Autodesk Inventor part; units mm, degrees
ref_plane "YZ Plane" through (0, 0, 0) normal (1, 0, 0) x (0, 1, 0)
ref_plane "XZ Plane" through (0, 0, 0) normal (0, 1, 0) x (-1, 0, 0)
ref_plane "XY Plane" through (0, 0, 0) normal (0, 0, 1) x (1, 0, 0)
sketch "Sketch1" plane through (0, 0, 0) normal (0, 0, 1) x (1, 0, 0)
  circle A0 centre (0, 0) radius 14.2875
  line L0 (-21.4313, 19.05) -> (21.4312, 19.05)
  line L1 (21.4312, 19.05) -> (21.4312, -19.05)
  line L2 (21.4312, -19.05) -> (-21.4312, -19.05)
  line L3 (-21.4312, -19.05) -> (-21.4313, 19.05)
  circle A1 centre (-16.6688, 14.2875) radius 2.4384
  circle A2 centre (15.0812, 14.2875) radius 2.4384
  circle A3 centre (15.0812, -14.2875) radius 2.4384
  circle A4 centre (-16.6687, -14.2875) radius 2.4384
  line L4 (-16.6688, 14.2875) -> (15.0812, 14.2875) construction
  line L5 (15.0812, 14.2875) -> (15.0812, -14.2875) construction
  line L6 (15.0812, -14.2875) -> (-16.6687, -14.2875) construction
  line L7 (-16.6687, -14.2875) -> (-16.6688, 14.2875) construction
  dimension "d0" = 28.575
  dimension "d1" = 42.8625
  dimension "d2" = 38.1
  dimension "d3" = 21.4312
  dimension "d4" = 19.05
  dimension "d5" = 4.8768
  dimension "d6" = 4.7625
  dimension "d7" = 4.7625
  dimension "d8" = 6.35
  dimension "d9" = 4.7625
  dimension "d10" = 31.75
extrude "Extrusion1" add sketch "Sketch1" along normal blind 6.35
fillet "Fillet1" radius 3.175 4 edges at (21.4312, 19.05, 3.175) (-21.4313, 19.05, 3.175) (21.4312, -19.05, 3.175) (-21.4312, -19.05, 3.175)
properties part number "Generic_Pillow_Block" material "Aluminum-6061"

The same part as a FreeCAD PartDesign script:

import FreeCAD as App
import Part
import Sketcher
Q = App.Units.Quantity


def edges_at(feature, points):
    """Names of the edges that pass closest to the given points."""
    edges = feature.Shape.Edges
    near = lambda p: min(range(len(edges)), key=lambda i: edges[i].distToShape(Part.Vertex(*p))[0])
    return sorted({f"Edge{near(p) + 1}" for p in points})


def add_polygon(sketch, points):
    """Adds a closed chain of lines whose ends are joined by coincident constraints."""
    first, n = sketch.GeometryCount, len(points)
    for a, b in zip(points, points[1:] + points[:1]):
        sketch.addGeometry(Part.LineSegment(App.Vector(*a, 0), App.Vector(*b, 0)), False)
    for i in range(n):
        sketch.addConstraint(Sketcher.Constraint("Coincident", first + i, 2, first + (i + 1) % n, 1))

doc = App.newDocument("Part")
body = doc.addObject("PartDesign::Body", "Body")

# Sketch on XY plane
sketch1 = body.newObject("Sketcher::SketchObject", "Sketch")
sketch1.AttachmentSupport = (doc.getObject("XY_Plane"), [""])
sketch1.MapMode = "FlatFace"
add_polygon(sketch1, [(21.4312, 19.05), (-21.4313, 19.05), (-21.4312, -19.05), (21.4312, -19.05)])  # lines 0-3
sketch1.addGeometry(Part.Circle(App.Vector(-16.6687, -14.2875, 0), App.Vector(0, 0, 1), 2.4384), False)  # 4
sketch1.addGeometry(Part.Circle(App.Vector(15.0812, -14.2875, 0), App.Vector(0, 0, 1), 2.4384), False)  # 5
sketch1.addGeometry(Part.Circle(App.Vector(-16.6688, 14.2875, 0), App.Vector(0, 0, 1), 2.4384), False)  # 6
sketch1.addGeometry(Part.Circle(App.Vector(0, 0, 0), App.Vector(0, 0, 1), 14.2875), False)  # 7
sketch1.addGeometry(Part.Circle(App.Vector(15.0812, 14.2875, 0), App.Vector(0, 0, 1), 2.4384), False)  # 8
sketch1.addConstraint([
    Sketcher.Constraint("Horizontal", 0),
    Sketcher.Constraint("Vertical", 1),
    Sketcher.Constraint("Horizontal", 2),
    Sketcher.Constraint("Vertical", 3),
    Sketcher.Constraint("Coincident", 7, 3, -1, 1),
    Sketcher.Constraint("Equal", 4, 5),
    Sketcher.Constraint("Equal", 5, 6),
    Sketcher.Constraint("Equal", 6, 8),
    Sketcher.Constraint("Symmetric", 0, 2, 2, 2, -1, 1),
    Sketcher.Constraint("Symmetric", 4, 3, 6, 3, -1),
    Sketcher.Constraint("Symmetric", 5, 3, 8, 3, -1),
    Sketcher.Constraint("Horizontal", 4, 3, 5, 3),
    Sketcher.Constraint("Diameter", 4, Q("0.192 in")),
    Sketcher.Constraint("Diameter", 7, Q("1.125 in")),
    Sketcher.Constraint("DistanceY", 1, 2, 1, 1, Q("1.5 in")),
    Sketcher.Constraint("DistanceX", 4, 3, 2, 2, Q("1.5 in")),
    Sketcher.Constraint("DistanceX", 0, 2, 0, 1, Q("1.6875 in")),
    Sketcher.Constraint("DistanceX", 4, 3, 5, 3, Q("1.25 in")),
    Sketcher.Constraint("DistanceY", 4, 3, 6, 3, Q("1.125 in")),
])
pad1 = body.newObject("PartDesign::Pad", "Pad")
pad1.Profile = sketch1
pad1.Length = Q("0.25 in")
doc.recompute()

fillet = body.newObject("PartDesign::Fillet", "Fillet")
fillet.Base = (pad1, edges_at(pad1, [
    (21.431, 19.05, 3.175),
    (-21.431, 19.05, 3.175),
    (21.431, -19.05, 3.175),
    (-21.431, -19.05, 3.175),
]))
fillet.Radius = Q("0.125 in")

doc.recompute()
